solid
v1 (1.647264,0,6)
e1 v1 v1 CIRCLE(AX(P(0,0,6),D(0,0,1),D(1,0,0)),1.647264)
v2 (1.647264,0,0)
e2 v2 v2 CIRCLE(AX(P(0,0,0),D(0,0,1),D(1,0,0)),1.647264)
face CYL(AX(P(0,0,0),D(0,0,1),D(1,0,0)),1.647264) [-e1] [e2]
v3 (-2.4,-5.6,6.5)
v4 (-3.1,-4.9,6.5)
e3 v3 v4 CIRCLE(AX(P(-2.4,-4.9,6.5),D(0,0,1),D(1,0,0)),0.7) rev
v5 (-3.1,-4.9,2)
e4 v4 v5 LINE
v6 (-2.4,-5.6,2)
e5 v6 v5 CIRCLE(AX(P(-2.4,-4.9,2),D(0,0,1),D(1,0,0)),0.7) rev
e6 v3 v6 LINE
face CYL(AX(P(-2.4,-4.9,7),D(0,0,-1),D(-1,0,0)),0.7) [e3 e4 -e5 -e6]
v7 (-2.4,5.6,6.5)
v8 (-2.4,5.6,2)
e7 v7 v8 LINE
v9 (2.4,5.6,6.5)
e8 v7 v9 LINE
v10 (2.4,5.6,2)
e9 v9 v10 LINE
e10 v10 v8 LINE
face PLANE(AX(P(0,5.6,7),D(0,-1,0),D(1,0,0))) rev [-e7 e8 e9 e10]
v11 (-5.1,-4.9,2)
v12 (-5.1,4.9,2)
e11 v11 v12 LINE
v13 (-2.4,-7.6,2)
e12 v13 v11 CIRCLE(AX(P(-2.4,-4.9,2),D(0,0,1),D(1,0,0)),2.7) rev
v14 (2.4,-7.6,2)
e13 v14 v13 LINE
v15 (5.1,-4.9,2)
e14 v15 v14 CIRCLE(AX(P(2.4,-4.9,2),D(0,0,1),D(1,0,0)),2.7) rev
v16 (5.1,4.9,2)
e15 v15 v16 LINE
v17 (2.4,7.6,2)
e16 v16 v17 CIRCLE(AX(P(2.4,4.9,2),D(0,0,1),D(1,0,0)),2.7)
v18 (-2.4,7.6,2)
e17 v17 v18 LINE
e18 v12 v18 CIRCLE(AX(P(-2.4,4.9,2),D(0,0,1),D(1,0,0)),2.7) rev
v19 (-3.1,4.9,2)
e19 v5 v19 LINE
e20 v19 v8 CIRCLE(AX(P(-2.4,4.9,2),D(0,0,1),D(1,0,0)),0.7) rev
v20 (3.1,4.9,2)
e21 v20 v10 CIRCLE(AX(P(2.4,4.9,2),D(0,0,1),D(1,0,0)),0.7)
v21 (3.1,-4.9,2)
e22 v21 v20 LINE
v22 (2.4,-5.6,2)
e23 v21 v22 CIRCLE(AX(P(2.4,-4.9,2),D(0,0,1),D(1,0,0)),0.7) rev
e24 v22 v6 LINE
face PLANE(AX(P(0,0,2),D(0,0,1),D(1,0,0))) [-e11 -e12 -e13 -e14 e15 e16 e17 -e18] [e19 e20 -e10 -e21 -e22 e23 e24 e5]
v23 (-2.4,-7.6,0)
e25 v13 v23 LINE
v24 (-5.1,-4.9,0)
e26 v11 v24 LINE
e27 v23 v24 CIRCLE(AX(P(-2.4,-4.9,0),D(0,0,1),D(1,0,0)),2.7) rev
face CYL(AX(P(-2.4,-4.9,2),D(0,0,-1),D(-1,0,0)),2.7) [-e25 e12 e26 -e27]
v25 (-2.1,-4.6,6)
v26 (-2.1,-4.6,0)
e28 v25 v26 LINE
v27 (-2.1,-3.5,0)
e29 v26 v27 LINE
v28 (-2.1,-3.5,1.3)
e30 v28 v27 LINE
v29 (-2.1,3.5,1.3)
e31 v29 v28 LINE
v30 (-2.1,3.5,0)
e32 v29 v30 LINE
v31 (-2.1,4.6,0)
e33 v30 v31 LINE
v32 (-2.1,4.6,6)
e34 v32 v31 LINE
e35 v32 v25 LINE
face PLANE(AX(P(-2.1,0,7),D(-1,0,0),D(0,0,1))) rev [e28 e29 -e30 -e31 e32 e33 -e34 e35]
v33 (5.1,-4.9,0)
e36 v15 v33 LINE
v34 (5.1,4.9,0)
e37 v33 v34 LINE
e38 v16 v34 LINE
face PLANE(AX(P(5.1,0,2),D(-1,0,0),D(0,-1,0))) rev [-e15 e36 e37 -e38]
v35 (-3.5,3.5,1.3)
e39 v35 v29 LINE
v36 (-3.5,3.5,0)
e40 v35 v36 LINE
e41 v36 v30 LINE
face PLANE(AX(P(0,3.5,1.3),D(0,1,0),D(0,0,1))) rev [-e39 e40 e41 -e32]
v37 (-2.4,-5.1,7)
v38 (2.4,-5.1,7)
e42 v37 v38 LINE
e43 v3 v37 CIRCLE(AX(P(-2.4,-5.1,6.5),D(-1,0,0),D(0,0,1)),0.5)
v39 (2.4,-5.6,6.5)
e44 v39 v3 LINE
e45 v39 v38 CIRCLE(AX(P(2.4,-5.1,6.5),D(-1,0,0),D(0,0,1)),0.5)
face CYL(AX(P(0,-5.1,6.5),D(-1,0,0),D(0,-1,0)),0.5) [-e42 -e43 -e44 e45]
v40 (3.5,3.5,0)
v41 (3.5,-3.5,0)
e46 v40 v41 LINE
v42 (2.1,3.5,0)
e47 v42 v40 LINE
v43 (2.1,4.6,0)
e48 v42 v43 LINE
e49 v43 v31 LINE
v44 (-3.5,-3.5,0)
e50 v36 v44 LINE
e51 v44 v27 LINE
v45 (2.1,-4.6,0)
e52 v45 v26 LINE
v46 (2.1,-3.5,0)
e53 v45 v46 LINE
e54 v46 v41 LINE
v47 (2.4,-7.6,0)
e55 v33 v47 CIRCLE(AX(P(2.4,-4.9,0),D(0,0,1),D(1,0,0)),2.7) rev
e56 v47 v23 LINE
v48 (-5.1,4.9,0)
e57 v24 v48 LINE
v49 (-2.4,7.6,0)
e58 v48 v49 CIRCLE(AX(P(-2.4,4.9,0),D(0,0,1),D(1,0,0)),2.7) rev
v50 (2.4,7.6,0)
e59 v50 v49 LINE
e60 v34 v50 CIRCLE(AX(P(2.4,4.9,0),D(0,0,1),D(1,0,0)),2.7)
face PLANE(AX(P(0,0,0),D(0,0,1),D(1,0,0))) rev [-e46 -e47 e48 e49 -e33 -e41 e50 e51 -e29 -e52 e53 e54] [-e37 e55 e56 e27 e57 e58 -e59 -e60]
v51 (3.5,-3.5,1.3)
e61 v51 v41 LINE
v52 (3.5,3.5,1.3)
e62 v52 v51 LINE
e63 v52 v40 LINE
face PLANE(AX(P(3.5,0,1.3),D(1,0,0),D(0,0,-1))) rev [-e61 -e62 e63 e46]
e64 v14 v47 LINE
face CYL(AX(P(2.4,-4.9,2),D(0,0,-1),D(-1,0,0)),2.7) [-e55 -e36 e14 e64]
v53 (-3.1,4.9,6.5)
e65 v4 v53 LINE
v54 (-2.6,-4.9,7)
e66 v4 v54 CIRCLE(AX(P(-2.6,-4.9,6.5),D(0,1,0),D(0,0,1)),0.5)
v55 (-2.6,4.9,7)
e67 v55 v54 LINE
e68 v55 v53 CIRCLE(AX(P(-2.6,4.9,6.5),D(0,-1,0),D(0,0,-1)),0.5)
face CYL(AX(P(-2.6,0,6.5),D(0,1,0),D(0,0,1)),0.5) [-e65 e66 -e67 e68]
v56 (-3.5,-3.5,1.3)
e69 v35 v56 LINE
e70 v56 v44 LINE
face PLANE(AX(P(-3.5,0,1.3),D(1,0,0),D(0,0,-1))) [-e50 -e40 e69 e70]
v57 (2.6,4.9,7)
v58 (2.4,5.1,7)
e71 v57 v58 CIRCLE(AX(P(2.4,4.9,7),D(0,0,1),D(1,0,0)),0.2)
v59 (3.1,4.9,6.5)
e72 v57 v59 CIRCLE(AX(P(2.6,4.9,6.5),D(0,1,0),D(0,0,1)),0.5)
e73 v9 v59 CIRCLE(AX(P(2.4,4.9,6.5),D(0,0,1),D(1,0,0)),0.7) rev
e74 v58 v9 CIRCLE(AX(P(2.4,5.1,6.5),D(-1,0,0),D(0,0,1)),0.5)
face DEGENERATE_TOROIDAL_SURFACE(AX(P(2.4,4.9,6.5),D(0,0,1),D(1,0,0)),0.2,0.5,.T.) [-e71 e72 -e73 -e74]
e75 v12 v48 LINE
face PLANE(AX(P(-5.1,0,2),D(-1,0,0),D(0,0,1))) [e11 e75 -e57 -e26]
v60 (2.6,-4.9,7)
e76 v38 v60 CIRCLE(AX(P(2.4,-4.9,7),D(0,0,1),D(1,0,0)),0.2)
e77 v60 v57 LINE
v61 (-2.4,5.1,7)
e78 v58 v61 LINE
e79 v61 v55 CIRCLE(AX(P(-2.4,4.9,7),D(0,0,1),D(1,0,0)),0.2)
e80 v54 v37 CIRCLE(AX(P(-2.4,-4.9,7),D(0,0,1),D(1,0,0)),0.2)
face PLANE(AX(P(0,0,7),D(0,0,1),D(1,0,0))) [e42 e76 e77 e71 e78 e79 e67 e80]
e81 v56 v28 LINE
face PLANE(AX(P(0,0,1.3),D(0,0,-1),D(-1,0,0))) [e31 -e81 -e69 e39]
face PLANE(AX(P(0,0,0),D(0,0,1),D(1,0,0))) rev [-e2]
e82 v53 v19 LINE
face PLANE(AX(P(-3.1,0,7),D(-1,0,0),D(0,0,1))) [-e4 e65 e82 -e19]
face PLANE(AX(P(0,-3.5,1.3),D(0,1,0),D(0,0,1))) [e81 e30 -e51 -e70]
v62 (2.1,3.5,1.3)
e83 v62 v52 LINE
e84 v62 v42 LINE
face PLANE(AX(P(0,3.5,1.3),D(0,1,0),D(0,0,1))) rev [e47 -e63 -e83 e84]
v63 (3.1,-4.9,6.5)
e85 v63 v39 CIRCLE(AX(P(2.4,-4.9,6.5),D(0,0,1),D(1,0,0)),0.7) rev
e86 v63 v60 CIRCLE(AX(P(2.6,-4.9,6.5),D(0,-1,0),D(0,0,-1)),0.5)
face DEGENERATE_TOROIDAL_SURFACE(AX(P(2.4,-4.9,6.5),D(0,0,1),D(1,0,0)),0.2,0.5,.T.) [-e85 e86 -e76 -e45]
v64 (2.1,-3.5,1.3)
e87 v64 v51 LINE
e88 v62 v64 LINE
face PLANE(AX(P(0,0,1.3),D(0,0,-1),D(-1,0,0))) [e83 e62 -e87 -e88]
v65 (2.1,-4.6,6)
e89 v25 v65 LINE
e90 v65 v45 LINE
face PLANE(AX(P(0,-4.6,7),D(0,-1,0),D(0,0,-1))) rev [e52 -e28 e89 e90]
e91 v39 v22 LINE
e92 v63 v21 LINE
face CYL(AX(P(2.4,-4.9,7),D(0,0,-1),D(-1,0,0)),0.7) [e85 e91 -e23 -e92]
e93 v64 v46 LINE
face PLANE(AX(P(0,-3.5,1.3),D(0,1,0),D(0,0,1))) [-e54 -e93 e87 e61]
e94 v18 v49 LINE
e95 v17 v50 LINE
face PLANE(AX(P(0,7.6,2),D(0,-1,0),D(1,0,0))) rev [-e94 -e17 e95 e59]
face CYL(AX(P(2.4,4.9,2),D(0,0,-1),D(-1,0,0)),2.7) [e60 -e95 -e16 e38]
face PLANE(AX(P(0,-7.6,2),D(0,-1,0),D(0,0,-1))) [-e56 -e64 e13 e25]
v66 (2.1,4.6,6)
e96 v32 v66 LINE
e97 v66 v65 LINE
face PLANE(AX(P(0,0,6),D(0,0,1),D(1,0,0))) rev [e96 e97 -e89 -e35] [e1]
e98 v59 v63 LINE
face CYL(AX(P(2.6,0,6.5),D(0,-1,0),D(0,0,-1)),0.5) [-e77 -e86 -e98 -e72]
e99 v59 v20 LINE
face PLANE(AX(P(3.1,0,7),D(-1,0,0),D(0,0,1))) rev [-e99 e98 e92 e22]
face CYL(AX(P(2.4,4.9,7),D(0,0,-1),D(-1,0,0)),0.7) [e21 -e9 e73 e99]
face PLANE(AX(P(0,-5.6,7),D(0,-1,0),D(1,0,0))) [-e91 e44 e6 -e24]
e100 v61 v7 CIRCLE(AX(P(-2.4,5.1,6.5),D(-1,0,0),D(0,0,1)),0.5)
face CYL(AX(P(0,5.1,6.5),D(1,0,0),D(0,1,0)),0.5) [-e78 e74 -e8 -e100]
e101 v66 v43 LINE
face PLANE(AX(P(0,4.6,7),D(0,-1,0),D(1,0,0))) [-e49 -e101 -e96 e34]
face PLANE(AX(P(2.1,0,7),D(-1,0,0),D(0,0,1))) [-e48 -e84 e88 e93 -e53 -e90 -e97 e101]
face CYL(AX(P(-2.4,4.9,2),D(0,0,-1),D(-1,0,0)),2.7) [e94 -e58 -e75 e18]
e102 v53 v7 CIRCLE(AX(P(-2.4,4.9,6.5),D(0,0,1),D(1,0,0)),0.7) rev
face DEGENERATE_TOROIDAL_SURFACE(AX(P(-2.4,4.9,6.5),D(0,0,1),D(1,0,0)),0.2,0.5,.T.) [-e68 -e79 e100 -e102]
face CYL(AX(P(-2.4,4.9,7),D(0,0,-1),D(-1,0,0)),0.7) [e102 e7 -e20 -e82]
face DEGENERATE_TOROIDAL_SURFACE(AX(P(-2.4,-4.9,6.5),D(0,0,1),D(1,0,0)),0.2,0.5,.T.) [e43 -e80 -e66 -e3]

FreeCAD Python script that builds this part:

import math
import FreeCAD as App
import Part
import Sketcher


def edges_at(feature, points):
    """Names of the edges that pass closest to the given points."""
    edges = feature.Shape.Edges
    near = lambda p: min(range(len(edges)), key=lambda i: edges[i].distToShape(Part.Vertex(*p))[0])
    return sorted({f"Edge{near(p) + 1}" for p in points})

doc = App.newDocument("Part")
body = doc.addObject("PartDesign::Body", "Body")

sketch1 = body.newObject("Sketcher::SketchObject", "Sketch")
sketch1.AttachmentSupport = (doc.getObject("XY_Plane"), [""])
sketch1.MapMode = "FlatFace"
sketch1.addGeometry([
    Part.ArcOfCircle(Part.Circle(App.Vector(-2.4, -4.9, 0), App.Vector(0, 0, 1), 0.7), math.radians(180), math.radians(270)),
    Part.LineSegment(App.Vector(-2.4, -5.6, 0), App.Vector(2.4, -5.6, 0)),
    Part.ArcOfCircle(Part.Circle(App.Vector(2.4, -4.9, 0), App.Vector(0, 0, 1), 0.7), math.radians(-90), math.radians(0)),
    Part.LineSegment(App.Vector(3.1, -4.9, 0), App.Vector(3.1, 4.9, 0)),
    Part.ArcOfCircle(Part.Circle(App.Vector(2.4, 4.9, 0), App.Vector(0, 0, 1), 0.7), math.radians(0), math.radians(90)),
    Part.LineSegment(App.Vector(2.4, 5.6, 0), App.Vector(-2.4, 5.6, 0)),
    Part.ArcOfCircle(Part.Circle(App.Vector(-2.4, 4.9, 0), App.Vector(0, 0, 1), 0.7), math.radians(90), math.radians(180)),
    Part.LineSegment(App.Vector(-3.1, 4.9, 0), App.Vector(-3.1, -4.9, 0)),
    Part.LineSegment(App.Vector(2.1, -4.6, 0), App.Vector(-2.1, -4.6, 0)),
    Part.LineSegment(App.Vector(-2.1, -4.6, 0), App.Vector(-2.1, 4.6, 0)),
    Part.LineSegment(App.Vector(-2.1, 4.6, 0), App.Vector(2.1, 4.6, 0)),
    Part.LineSegment(App.Vector(2.1, 4.6, 0), App.Vector(2.1, -4.6, 0)),
], False)
sketch1.addConstraint([
    Sketcher.Constraint("Tangent", 0, 2, 1, 1),
    Sketcher.Constraint("Tangent", 1, 2, 2, 1),
    Sketcher.Constraint("Tangent", 2, 2, 3, 1),
    Sketcher.Constraint("Tangent", 3, 2, 4, 1),
    Sketcher.Constraint("Tangent", 4, 2, 5, 1),
    Sketcher.Constraint("Tangent", 5, 2, 6, 1),
    Sketcher.Constraint("Tangent", 6, 2, 7, 1),
    Sketcher.Constraint("Tangent", 7, 2, 0, 1),
    Sketcher.Constraint("Coincident", 8, 2, 9, 1),
    Sketcher.Constraint("Coincident", 9, 2, 10, 1),
    Sketcher.Constraint("Coincident", 10, 2, 11, 1),
    Sketcher.Constraint("Coincident", 11, 2, 8, 1),
    Sketcher.Constraint("Horizontal", 1),
    Sketcher.Constraint("Vertical", 3),
    Sketcher.Constraint("Horizontal", 5),
    Sketcher.Constraint("Vertical", 7),
    Sketcher.Constraint("Horizontal", 8),
    Sketcher.Constraint("Vertical", 9),
    Sketcher.Constraint("Horizontal", 10),
    Sketcher.Constraint("Vertical", 11),
    Sketcher.Constraint("Equal", 0, 2),
    Sketcher.Constraint("Equal", 2, 4),
    Sketcher.Constraint("Equal", 4, 6),
    Sketcher.Constraint("Symmetric", 0, 3, 4, 3, -1, 1),
    Sketcher.Constraint("Symmetric", 8, 2, 10, 2, -1, 1),
    Sketcher.Constraint("Radius", 0, 0.7),
    Sketcher.Constraint("DistanceX", 1, 1, 1, 2, 4.8),
    Sketcher.Constraint("DistanceX", 8, 2, 8, 1, 4.2),
    Sketcher.Constraint("DistanceY", 3, 1, 3, 2, 9.8),
    Sketcher.Constraint("DistanceY", 9, 1, 9, 2, 9.2),
])
pad1 = body.newObject("PartDesign::Pad", "Pad")
pad1.Profile = sketch1
pad1.Length = 7

sketch2 = body.newObject("Sketcher::SketchObject", "Sketch001")
sketch2.AttachmentSupport = (doc.getObject("XY_Plane"), [""])
sketch2.MapMode = "FlatFace"
sketch2.addGeometry([
    Part.ArcOfCircle(Part.Circle(App.Vector(2.4, -4.9, 0), App.Vector(0, 0, 1), 2.7), math.radians(-90), math.radians(0)),
    Part.LineSegment(App.Vector(5.1, -4.9, 0), App.Vector(5.1, 4.9, 0)),
    Part.ArcOfCircle(Part.Circle(App.Vector(2.4, 4.9, 0), App.Vector(0, 0, 1), 2.7), math.radians(0), math.radians(90)),
    Part.LineSegment(App.Vector(2.4, 7.6, 0), App.Vector(-2.4, 7.6, 0)),
    Part.ArcOfCircle(Part.Circle(App.Vector(-2.4, 4.9, 0), App.Vector(0, 0, 1), 2.7), math.radians(90), math.radians(180)),
    Part.LineSegment(App.Vector(-5.1, 4.9, 0), App.Vector(-5.1, -4.9, 0)),
    Part.ArcOfCircle(Part.Circle(App.Vector(-2.4, -4.9, 0), App.Vector(0, 0, 1), 2.7), math.radians(-180), math.radians(-90)),
    Part.LineSegment(App.Vector(-2.4, -7.6, 0), App.Vector(2.4, -7.6, 0)),
    Part.LineSegment(App.Vector(2.4, -5.6, 0), App.Vector(-2.4, -5.6, 0)),
    Part.ArcOfCircle(Part.Circle(App.Vector(-2.4, -4.9, 0), App.Vector(0, 0, 1), 0.7), math.radians(180), math.radians(270)),
    Part.LineSegment(App.Vector(-3.1, -4.9, 0), App.Vector(-3.1, 4.9, 0)),
    Part.ArcOfCircle(Part.Circle(App.Vector(-2.4, 4.9, 0), App.Vector(0, 0, 1), 0.7), math.radians(90), math.radians(180)),
    Part.LineSegment(App.Vector(-2.4, 5.6, 0), App.Vector(2.4, 5.6, 0)),
    Part.ArcOfCircle(Part.Circle(App.Vector(2.4, 4.9, 0), App.Vector(0, 0, 1), 0.7), math.radians(0), math.radians(90)),
    Part.LineSegment(App.Vector(3.1, 4.9, 0), App.Vector(3.1, -4.9, 0)),
    Part.ArcOfCircle(Part.Circle(App.Vector(2.4, -4.9, 0), App.Vector(0, 0, 1), 0.7), math.radians(-90), math.radians(0)),
], False)
sketch2.addConstraint([
    Sketcher.Constraint("Tangent", 0, 2, 1, 1),
    Sketcher.Constraint("Tangent", 1, 2, 2, 1),
    Sketcher.Constraint("Tangent", 2, 2, 3, 1),
    Sketcher.Constraint("Tangent", 3, 2, 4, 1),
    Sketcher.Constraint("Tangent", 4, 2, 5, 1),
    Sketcher.Constraint("Tangent", 5, 2, 6, 1),
    Sketcher.Constraint("Tangent", 6, 2, 7, 1),
    Sketcher.Constraint("Tangent", 7, 2, 0, 1),
    Sketcher.Constraint("Tangent", 8, 2, 9, 2),
    Sketcher.Constraint("Tangent", 9, 1, 10, 1),
    Sketcher.Constraint("Tangent", 10, 2, 11, 2),
    Sketcher.Constraint("Tangent", 11, 1, 12, 1),
    Sketcher.Constraint("Tangent", 12, 2, 13, 2),
    Sketcher.Constraint("Tangent", 13, 1, 14, 1),
    Sketcher.Constraint("Tangent", 14, 2, 15, 2),
    Sketcher.Constraint("Tangent", 15, 1, 8, 1),
    Sketcher.Constraint("Vertical", 1),
    Sketcher.Constraint("Horizontal", 3),
    Sketcher.Constraint("Vertical", 5),
    Sketcher.Constraint("Horizontal", 7),
    Sketcher.Constraint("Horizontal", 8),
    Sketcher.Constraint("Vertical", 10),
    Sketcher.Constraint("Horizontal", 12),
    Sketcher.Constraint("Vertical", 14),
    Sketcher.Constraint("Coincident", 9, 3, 6, 3),
    Sketcher.Constraint("Coincident", 11, 3, 4, 3),
    Sketcher.Constraint("Coincident", 13, 3, 2, 3),
    Sketcher.Constraint("Equal", 0, 2),
    Sketcher.Constraint("Equal", 2, 4),
    Sketcher.Constraint("Equal", 4, 6),
    Sketcher.Constraint("Equal", 13, 15),
    Sketcher.Constraint("Symmetric", 0, 3, 4, 3, -1, 1),
    Sketcher.Constraint("Radius", 0, 2.7),
    Sketcher.Constraint("Radius", 9, 0.7),
    Sketcher.Constraint("DistanceX", 3, 2, 3, 1, 4.8),
    Sketcher.Constraint("DistanceY", 1, 1, 1, 2, 9.8),
])
pad2 = body.newObject("PartDesign::Pad", "Pad001")
pad2.Profile = sketch2
pad2.Length = 2

sketch3 = body.newObject("Sketcher::SketchObject", "Sketch002")
sketch3.AttachmentSupport = (doc.getObject("XY_Plane"), [""])
sketch3.MapMode = "FlatFace"
sketch3.AttachmentOffset = App.Placement(App.Vector(0, 0, 7), App.Rotation())
sketch3.addGeometry([
    Part.LineSegment(App.Vector(-2.1, -4.6, 0), App.Vector(2.1, -4.6, 0)),
    Part.LineSegment(App.Vector(2.1, -4.6, 0), App.Vector(2.1, 4.6, 0)),
    Part.LineSegment(App.Vector(2.1, 4.6, 0), App.Vector(-2.1, 4.6, 0)),
    Part.LineSegment(App.Vector(-2.1, 4.6, 0), App.Vector(-2.1, -4.6, 0)),
    Part.Circle(App.Vector(0, 0, 0), App.Vector(0, 0, 1), 1.6),
], False)
sketch3.addConstraint([
    Sketcher.Constraint("Coincident", 0, 2, 1, 1),
    Sketcher.Constraint("Coincident", 1, 2, 2, 1),
    Sketcher.Constraint("Coincident", 2, 2, 3, 1),
    Sketcher.Constraint("Coincident", 3, 2, 0, 1),
    Sketcher.Constraint("Horizontal", 0),
    Sketcher.Constraint("Vertical", 1),
    Sketcher.Constraint("Horizontal", 2),
    Sketcher.Constraint("Vertical", 3),
    Sketcher.Constraint("Coincident", 4, 3, -1, 1),
    Sketcher.Constraint("Symmetric", 0, 2, 2, 2, -1, 1),
    Sketcher.Constraint("DistanceX", 0, 1, 0, 2, 4.2),
    Sketcher.Constraint("DistanceY", 1, 1, 1, 2, 9.2),
    Sketcher.Constraint("Diameter", 4, 3.294527),
])
pad3 = body.newObject("PartDesign::Pad", "Pad002")
pad3.Profile = sketch3
pad3.Length = 1
pad3.Reversed = True

sketch4 = body.newObject("Sketcher::SketchObject", "Sketch003")
sketch4.AttachmentSupport = (doc.getObject("XY_Plane"), [""])
sketch4.MapMode = "FlatFace"
sketch4.AttachmentOffset = App.Placement(App.Vector(0, 0, 7), App.Rotation())
sketch4.addGeometry(Part.Circle(App.Vector(0, 0, 0), App.Vector(0, 0, 1), 1.6), False)
sketch4.addConstraint([
    Sketcher.Constraint("Coincident", 0, 3, -1, 1),
    Sketcher.Constraint("Diameter", 0, 3.294527),
])
pad4 = body.newObject("PartDesign::Pad", "Pad003")
pad4.Profile = sketch4
pad4.Length = 7
pad4.Reversed = True

sketch5 = body.newObject("Sketcher::SketchObject", "Sketch004")
sketch5.AttachmentSupport = (doc.getObject("XY_Plane"), [""])
sketch5.MapMode = "FlatFace"
sketch5.AttachmentOffset = App.Placement(App.Vector(0, 0, 1.3), App.Rotation())
sketch5.addGeometry([
    Part.LineSegment(App.Vector(3.5, 3.5, 0), App.Vector(3.5, -3.5, 0)),
    Part.LineSegment(App.Vector(3.5, -3.5, 0), App.Vector(-3.5, -3.5, 0)),
    Part.LineSegment(App.Vector(-3.5, -3.5, 0), App.Vector(-3.5, 3.5, 0)),
    Part.LineSegment(App.Vector(-3.5, 3.5, 0), App.Vector(3.5, 3.5, 0)),
    Part.Circle(App.Vector(0, 0, 0), App.Vector(0, 0, 1), 1.6),
], False)
sketch5.addConstraint([
    Sketcher.Constraint("Coincident", 0, 2, 1, 1),
    Sketcher.Constraint("Coincident", 1, 2, 2, 1),
    Sketcher.Constraint("Coincident", 2, 2, 3, 1),
    Sketcher.Constraint("Coincident", 3, 2, 0, 1),
    Sketcher.Constraint("Vertical", 0),
    Sketcher.Constraint("Horizontal", 1),
    Sketcher.Constraint("Vertical", 2),
    Sketcher.Constraint("Horizontal", 3),
    Sketcher.Constraint("Coincident", 4, 3, -1, 1),
    Sketcher.Constraint("Symmetric", 0, 2, 2, 2, -1, 1),
    Sketcher.Constraint("Equal", 3, 0),
    Sketcher.Constraint("DistanceX", 1, 2, 1, 1, 7.0),
    Sketcher.Constraint("Diameter", 4, 3.294527),
])
pocket1 = body.newObject("PartDesign::Pocket", "Pocket")
pocket1.Profile = sketch5
pocket1.Length = 1.3
doc.recompute()

fillet = body.newObject("PartDesign::Fillet", "Fillet")
fillet.Base = (pocket1, edges_at(pocket1, [
    (0, -5.6, 7),
    (2.895, -5.395, 7),
    (3.1, 0, 7),
    (2.895, 5.395, 7),
    (0, 5.6, 7),
    (-2.895, 5.395, 7),
    (-3.1, 0, 7),
    (-2.895, -5.395, 7),
]))
fillet.Radius = 0.5

doc.recompute()
